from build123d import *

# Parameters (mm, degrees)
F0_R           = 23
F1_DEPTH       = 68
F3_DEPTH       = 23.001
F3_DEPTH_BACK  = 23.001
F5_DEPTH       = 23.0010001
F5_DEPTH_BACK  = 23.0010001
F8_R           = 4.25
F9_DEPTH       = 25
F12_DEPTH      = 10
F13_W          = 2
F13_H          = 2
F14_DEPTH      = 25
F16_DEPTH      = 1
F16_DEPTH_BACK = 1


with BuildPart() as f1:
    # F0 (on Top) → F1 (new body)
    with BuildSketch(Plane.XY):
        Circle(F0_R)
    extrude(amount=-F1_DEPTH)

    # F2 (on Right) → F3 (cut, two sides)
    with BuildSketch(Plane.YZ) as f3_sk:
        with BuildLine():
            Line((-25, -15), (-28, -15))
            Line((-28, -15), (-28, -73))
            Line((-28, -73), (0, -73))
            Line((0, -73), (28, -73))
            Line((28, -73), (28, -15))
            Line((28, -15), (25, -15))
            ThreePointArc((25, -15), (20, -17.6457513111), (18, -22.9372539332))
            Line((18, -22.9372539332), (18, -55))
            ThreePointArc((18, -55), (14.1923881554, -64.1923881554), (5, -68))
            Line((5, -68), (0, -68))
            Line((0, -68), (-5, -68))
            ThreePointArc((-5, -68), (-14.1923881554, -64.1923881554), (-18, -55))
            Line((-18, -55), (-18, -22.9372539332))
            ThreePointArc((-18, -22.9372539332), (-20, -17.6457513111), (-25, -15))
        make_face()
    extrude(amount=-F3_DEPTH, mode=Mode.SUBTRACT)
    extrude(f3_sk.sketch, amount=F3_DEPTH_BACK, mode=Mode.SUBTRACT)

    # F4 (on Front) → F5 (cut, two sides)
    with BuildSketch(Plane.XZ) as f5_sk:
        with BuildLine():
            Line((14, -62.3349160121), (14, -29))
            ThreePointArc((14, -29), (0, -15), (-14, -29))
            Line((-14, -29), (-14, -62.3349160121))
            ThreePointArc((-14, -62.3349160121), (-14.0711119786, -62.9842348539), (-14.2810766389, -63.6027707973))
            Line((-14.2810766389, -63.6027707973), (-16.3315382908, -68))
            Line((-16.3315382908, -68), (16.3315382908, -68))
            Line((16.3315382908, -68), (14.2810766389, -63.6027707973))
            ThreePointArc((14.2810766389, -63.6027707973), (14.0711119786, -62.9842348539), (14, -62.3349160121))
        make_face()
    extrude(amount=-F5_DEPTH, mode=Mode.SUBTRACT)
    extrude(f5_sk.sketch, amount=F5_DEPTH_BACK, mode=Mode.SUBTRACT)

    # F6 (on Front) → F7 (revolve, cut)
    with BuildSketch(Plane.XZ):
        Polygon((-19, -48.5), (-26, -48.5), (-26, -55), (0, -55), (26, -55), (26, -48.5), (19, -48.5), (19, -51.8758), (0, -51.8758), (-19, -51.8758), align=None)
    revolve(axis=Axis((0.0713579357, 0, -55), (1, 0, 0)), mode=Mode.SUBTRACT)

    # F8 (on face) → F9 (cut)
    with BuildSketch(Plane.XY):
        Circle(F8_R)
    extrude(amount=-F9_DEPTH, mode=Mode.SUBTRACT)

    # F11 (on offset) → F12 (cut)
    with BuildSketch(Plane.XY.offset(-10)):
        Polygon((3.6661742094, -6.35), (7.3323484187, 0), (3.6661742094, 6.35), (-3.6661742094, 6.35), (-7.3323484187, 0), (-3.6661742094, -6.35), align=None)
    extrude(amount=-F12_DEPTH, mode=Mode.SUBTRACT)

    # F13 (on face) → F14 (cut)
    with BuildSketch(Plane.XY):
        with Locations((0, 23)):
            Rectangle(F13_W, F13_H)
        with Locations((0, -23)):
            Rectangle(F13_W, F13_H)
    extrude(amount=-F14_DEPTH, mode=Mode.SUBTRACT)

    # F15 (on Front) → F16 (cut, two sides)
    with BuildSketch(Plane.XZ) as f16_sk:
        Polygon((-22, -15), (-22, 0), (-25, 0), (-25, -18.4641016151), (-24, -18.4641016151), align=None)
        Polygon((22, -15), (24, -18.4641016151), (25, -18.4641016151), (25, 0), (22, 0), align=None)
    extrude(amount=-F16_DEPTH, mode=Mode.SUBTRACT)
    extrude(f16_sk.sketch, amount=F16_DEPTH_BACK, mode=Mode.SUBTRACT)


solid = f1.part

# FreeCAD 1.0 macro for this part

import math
import FreeCAD as App
import Part
import Sketcher
Q = App.Units.Quantity

doc = App.newDocument("Part")
body = doc.addObject("PartDesign::Body", "Body")

sketch1 = body.newObject("Sketcher::SketchObject", "Sketch")
sketch1.AttachmentSupport = (doc.getObject("XY_Plane"), [""])
sketch1.MapMode = "FlatFace"
sketch1.addGeometry(Part.Circle(App.Vector(0, 0, 0), App.Vector(0, 0, 1), 23), False)
sketch1.addConstraint([
    Sketcher.Constraint("Coincident", 0, 3, -1, 1),
    Sketcher.Constraint("Diameter", 0, Q("46 mm")),
])
pad1 = body.newObject("PartDesign::Pad", "Pad")
pad1.Profile = sketch1
pad1.Length = 68
pad1.Reversed = True

sketch2 = body.newObject("Sketcher::SketchObject", "Sketch001")
sketch2.AttachmentSupport = (doc.getObject("YZ_Plane"), [""])
sketch2.MapMode = "FlatFace"
sketch2.addGeometry([
    Part.LineSegment(App.Vector(-25, -15, 0), App.Vector(-28, -15, 0)),
    Part.LineSegment(App.Vector(-28, -15, 0), App.Vector(-28, -73, 0)),
    Part.LineSegment(App.Vector(-28, -73, 0), App.Vector(28, -73, 0)),
    Part.LineSegment(App.Vector(28, -73, 0), App.Vector(28, -15, 0)),
    Part.LineSegment(App.Vector(28, -15, 0), App.Vector(25, -15, 0)),
    Part.ArcOfCircle(Part.Circle(App.Vector(26, -22.9, 0), App.Vector(0, 0, 1), 8), math.radians(97), math.radians(180)),
    Part.LineSegment(App.Vector(18, -22.9, 0), App.Vector(18, -55, 0)),
    Part.ArcOfCircle(Part.Circle(App.Vector(5, -55, 0), App.Vector(0, 0, 1), 13), math.radians(-90), math.radians(0)),
    Part.LineSegment(App.Vector(5, -68, 0), App.Vector(-5, -68, 0)),
    Part.ArcOfCircle(Part.Circle(App.Vector(-5, -55, 0), App.Vector(0, 0, 1), 13), math.radians(180), math.radians(270)),
    Part.LineSegment(App.Vector(-18, -55, 0), App.Vector(-18, -22.9, 0)),
    Part.ArcOfCircle(Part.Circle(App.Vector(-26, -22.9, 0), App.Vector(0, 0, 1), 8), math.radians(0), math.radians(83)),
], False)
sketch2.addConstraint([
    Sketcher.Constraint("Coincident", 0, 2, 1, 1),
    Sketcher.Constraint("Coincident", 1, 2, 2, 1),
    Sketcher.Constraint("Coincident", 2, 2, 3, 1),
    Sketcher.Constraint("Coincident", 3, 2, 4, 1),
    Sketcher.Constraint("Coincident", 4, 2, 5, 1),
    Sketcher.Constraint("Tangent", 5, 2, 6, 1),
    Sketcher.Constraint("Tangent", 6, 2, 7, 2),
    Sketcher.Constraint("Tangent", 7, 1, 8, 1),
    Sketcher.Constraint("Tangent", 8, 2, 9, 2),
    Sketcher.Constraint("Tangent", 9, 1, 10, 1),
    Sketcher.Constraint("Tangent", 10, 2, 11, 1),
    Sketcher.Constraint("Coincident", 11, 2, 0, 1),
    Sketcher.Constraint("Horizontal", 0),
    Sketcher.Constraint("Vertical", 1),
    Sketcher.Constraint("Horizontal", 2),
    Sketcher.Constraint("Vertical", 3),
    Sketcher.Constraint("Horizontal", 4),
    Sketcher.Constraint("Vertical", 6),
    Sketcher.Constraint("Horizontal", 8),
    Sketcher.Constraint("Vertical", 10),
    Sketcher.Constraint("Equal", 7, 9),
    Sketcher.Constraint("Equal", 5, 11),
    Sketcher.Constraint("Symmetric", 5, 3, 11, 3, -2),
    Sketcher.Constraint("Symmetric", 0, 2, 3, 2, -2),
    Sketcher.Constraint("Radius", 5, Q("8 mm")),
    Sketcher.Constraint("Radius", 7, Q("13 mm")),
    Sketcher.Constraint("DistanceX", 0, 2, 0, 1, Q("3 mm")),
    Sketcher.Constraint("DistanceX", 2, 1, 2, 2, Q("56 mm")),
    Sketcher.Constraint("DistanceX", 8, 2, 8, 1, Q("10 mm")),
    Sketcher.Constraint("DistanceY", 1, 2, 1, 1, Q("58 mm")),
    Sketcher.Constraint("DistanceY", 7, 3, -1, 1, Q("55 mm")),
    Sketcher.Constraint("DistanceY", 0, 2, -1, 1, Q("15 mm")),
])
pocket1 = body.newObject("PartDesign::Pocket", "Pocket")
pocket1.Profile = sketch2
pocket1.Type = "ThroughAll"
pocket1.Midplane = True

sketch3 = body.newObject("Sketcher::SketchObject", "Sketch002")
sketch3.AttachmentSupport = (doc.getObject("XZ_Plane"), [""])
sketch3.MapMode = "FlatFace"
sketch3.addGeometry([
    Part.LineSegment(App.Vector(14, -62.3, 0), App.Vector(14, -29, 0)),
    Part.ArcOfCircle(Part.Circle(App.Vector(0, -29, 0), App.Vector(0, 0, 1), 14), math.radians(0), math.radians(180)),
    Part.LineSegment(App.Vector(-14, -29, 0), App.Vector(-14, -62.3, 0)),
    Part.ArcOfCircle(Part.Circle(App.Vector(-17, -62.3, 0), App.Vector(0, 0, 1), 3), math.radians(-25), math.radians(0)),
    Part.LineSegment(App.Vector(-14.3, -63.6, 0), App.Vector(-16.3, -68, 0)),
    Part.LineSegment(App.Vector(-16.3, -68, 0), App.Vector(16.3, -68, 0)),
    Part.LineSegment(App.Vector(16.3, -68, 0), App.Vector(14.3, -63.6, 0)),
    Part.ArcOfCircle(Part.Circle(App.Vector(17, -62.3, 0), App.Vector(0, 0, 1), 3), math.radians(180), math.radians(205)),
], False)
sketch3.addConstraint([
    Sketcher.Constraint("Tangent", 0, 2, 1, 1),
    Sketcher.Constraint("Tangent", 1, 2, 2, 1),
    Sketcher.Constraint("Tangent", 2, 2, 3, 2),
    Sketcher.Constraint("Tangent", 3, 1, 4, 1),
    Sketcher.Constraint("Coincident", 4, 2, 5, 1),
    Sketcher.Constraint("Coincident", 5, 2, 6, 1),
    Sketcher.Constraint("Tangent", 6, 2, 7, 2),
    Sketcher.Constraint("Tangent", 7, 1, 0, 1),
    Sketcher.Constraint("Vertical", 0),
    Sketcher.Constraint("Vertical", 2),
    Sketcher.Constraint("Horizontal", 5),
    Sketcher.Constraint("Equal", 3, 7),
    Sketcher.Constraint("Symmetric", 3, 3, 7, 3, -2),
    Sketcher.Constraint("Horizontal", 3, 1, 6, 2),
    Sketcher.Constraint("Radius", 1, Q("14 mm")),
    Sketcher.Constraint("Radius", 3, Q("3 mm")),
    Sketcher.Constraint("Angle", 4, Q("-115 deg")),
    Sketcher.Constraint("DistanceY", 1, 3, -1, 1, Q("29 mm")),
    Sketcher.Constraint("DistanceY", 4, 2, -1, 1, Q("68 mm")),
    Sketcher.Constraint("DistanceX", 5, 1, 5, 2, Q("32.663077 mm")),
])
pocket2 = body.newObject("PartDesign::Pocket", "Pocket001")
pocket2.Profile = sketch3
pocket2.Type = "ThroughAll"
pocket2.Midplane = True

sketch4 = body.newObject("Sketcher::SketchObject", "Sketch003")
sketch4.AttachmentSupport = (doc.getObject("XZ_Plane"), [""])
sketch4.MapMode = "FlatFace"
sketch4.addGeometry([
    Part.LineSegment(App.Vector(-19, -48.5, 0), App.Vector(-26, -48.5, 0)),
    Part.LineSegment(App.Vector(-26, -48.5, 0), App.Vector(-26, -55, 0)),
    Part.LineSegment(App.Vector(-26, -55, 0), App.Vector(26, -55, 0)),
    Part.LineSegment(App.Vector(26, -55, 0), App.Vector(26, -48.5, 0)),
    Part.LineSegment(App.Vector(26, -48.5, 0), App.Vector(19, -48.5, 0)),
    Part.LineSegment(App.Vector(19, -48.5, 0), App.Vector(19, -51.9, 0)),
    Part.LineSegment(App.Vector(19, -51.9, 0), App.Vector(-19, -51.9, 0)),
    Part.LineSegment(App.Vector(-19, -51.9, 0), App.Vector(-19, -48.5, 0)),
], False)
sketch4.addGeometry(Part.LineSegment(App.Vector(-26, -55, 0), App.Vector(26, -55, 0)), True)
sketch4.addConstraint([
    Sketcher.Constraint("Coincident", 0, 2, 1, 1),
    Sketcher.Constraint("Coincident", 1, 2, 2, 1),
    Sketcher.Constraint("Coincident", 2, 2, 3, 1),
    Sketcher.Constraint("Coincident", 3, 2, 4, 1),
    Sketcher.Constraint("Coincident", 4, 2, 5, 1),
    Sketcher.Constraint("Coincident", 5, 2, 6, 1),
    Sketcher.Constraint("Coincident", 6, 2, 7, 1),
    Sketcher.Constraint("Coincident", 7, 2, 0, 1),
    Sketcher.Constraint("Horizontal", 0),
    Sketcher.Constraint("Vertical", 1),
    Sketcher.Constraint("Horizontal", 2),
    Sketcher.Constraint("Vertical", 3),
    Sketcher.Constraint("Horizontal", 4),
    Sketcher.Constraint("Vertical", 5),
    Sketcher.Constraint("Horizontal", 6),
    Sketcher.Constraint("Vertical", 7),
    Sketcher.Constraint("Horizontal", 8),
    Sketcher.Constraint("Coincident", 8, 1, 1, 2),
    Sketcher.Constraint("Symmetric", 0, 2, 3, 2, -2),
    Sketcher.Constraint("Vertical", 3, 2, 8, 2),
    Sketcher.Constraint("Equal", 0, 4),
    Sketcher.Constraint("DistanceX", 0, 2, 0, 1, Q("7 mm")),
    Sketcher.Constraint("DistanceX", 2, 1, 2, 2, Q("52 mm")),
    Sketcher.Constraint("DistanceY", 1, 2, 1, 1, Q("6.5 mm")),
    Sketcher.Constraint("DistanceY", 1, 2, -1, 1, Q("55 mm")),
    Sketcher.Constraint("DistanceY", 5, 2, 5, 1, Q("3.3758 mm")),
])
groove = body.newObject("PartDesign::Groove", "Groove")
groove.Profile = sketch4
groove.ReferenceAxis = (sketch4, ["Axis0"])
groove.Angle = 360

sketch5 = body.newObject("Sketcher::SketchObject", "Sketch004")
sketch5.AttachmentSupport = (doc.getObject("XY_Plane"), [""])
sketch5.MapMode = "FlatFace"
sketch5.addGeometry(Part.Circle(App.Vector(0, 0, 0), App.Vector(0, 0, 1), 4.2), False)
sketch5.addConstraint([
    Sketcher.Constraint("Coincident", 0, 3, -1, 1),
    Sketcher.Constraint("Diameter", 0, Q("8.5 mm")),
])
pocket3 = body.newObject("PartDesign::Pocket", "Pocket002")
pocket3.Profile = sketch5
pocket3.Length = 25

sketch6 = body.newObject("Sketcher::SketchObject", "Sketch005")
sketch6.AttachmentSupport = (doc.getObject("XY_Plane"), [""])
sketch6.MapMode = "FlatFace"
sketch6.AttachmentOffset = App.Placement(App.Vector(0, 0, -10), App.Rotation())
sketch6.addGeometry([
    Part.LineSegment(App.Vector(4, -6, 0), App.Vector(7, 0, 0)),
    Part.LineSegment(App.Vector(7, 0, 0), App.Vector(4, 6, 0)),
    Part.LineSegment(App.Vector(4, 6, 0), App.Vector(-4, 6, 0)),
    Part.LineSegment(App.Vector(-4, 6, 0), App.Vector(-7, 0, 0)),
    Part.LineSegment(App.Vector(-7, 0, 0), App.Vector(-4, -6, 0)),
    Part.LineSegment(App.Vector(-4, -6, 0), App.Vector(4, -6, 0)),
], False)
sketch6.addConstraint([
    Sketcher.Constraint("Coincident", 0, 2, 1, 1),
    Sketcher.Constraint("Coincident", 1, 2, 2, 1),
    Sketcher.Constraint("Coincident", 2, 2, 3, 1),
    Sketcher.Constraint("Coincident", 3, 2, 4, 1),
    Sketcher.Constraint("Coincident", 4, 2, 5, 1),
    Sketcher.Constraint("Coincident", 5, 2, 0, 1),
    Sketcher.Constraint("Horizontal", 2),
    Sketcher.Constraint("Horizontal", 5),
    Sketcher.Constraint("Symmetric", 0, 2, 3, 2, -1, 1),
    Sketcher.Constraint("Symmetric", 1, 2, 4, 2, -1, 1),
    Sketcher.Constraint("PointOnObject", 0, 2, -1),
    Sketcher.Constraint("Parallel", 0, 3),
    Sketcher.Constraint("Vertical", 2, 2, 4, 2),
    Sketcher.Constraint("Angle", 0, Q("60 deg")),
    Sketcher.Constraint("DistanceY", 4, 2, 2, 2, Q("12.7 mm")),
    Sketcher.Constraint("DistanceX", 2, 2, 2, 1, Q("7.332348 mm")),
])
pocket4 = body.newObject("PartDesign::Pocket", "Pocket003")
pocket4.Profile = sketch6
pocket4.Length = 10

sketch7 = body.newObject("Sketcher::SketchObject", "Sketch006")
sketch7.AttachmentSupport = (doc.getObject("XY_Plane"), [""])
sketch7.MapMode = "FlatFace"
sketch7.addGeometry([
    Part.LineSegment(App.Vector(-1, 24, 0), App.Vector(-1, 22, 0)),
    Part.LineSegment(App.Vector(-1, 22, 0), App.Vector(1, 22, 0)),
    Part.LineSegment(App.Vector(1, 22, 0), App.Vector(1, 24, 0)),
    Part.LineSegment(App.Vector(1, 24, 0), App.Vector(-1, 24, 0)),
    Part.LineSegment(App.Vector(-1, -22, 0), App.Vector(-1, -24, 0)),
    Part.LineSegment(App.Vector(-1, -24, 0), App.Vector(1, -24, 0)),
    Part.LineSegment(App.Vector(1, -24, 0), App.Vector(1, -22, 0)),
    Part.LineSegment(App.Vector(1, -22, 0), App.Vector(-1, -22, 0)),
], False)
sketch7.addConstraint([
    Sketcher.Constraint("Coincident", 0, 2, 1, 1),
    Sketcher.Constraint("Coincident", 1, 2, 2, 1),
    Sketcher.Constraint("Coincident", 2, 2, 3, 1),
    Sketcher.Constraint("Coincident", 3, 2, 0, 1),
    Sketcher.Constraint("Coincident", 4, 2, 5, 1),
    Sketcher.Constraint("Coincident", 5, 2, 6, 1),
    Sketcher.Constraint("Coincident", 6, 2, 7, 1),
    Sketcher.Constraint("Coincident", 7, 2, 4, 1),
    Sketcher.Constraint("Vertical", 0),
    Sketcher.Constraint("Horizontal", 1),
    Sketcher.Constraint("Vertical", 2),
    Sketcher.Constraint("Horizontal", 3),
    Sketcher.Constraint("Vertical", 4),
    Sketcher.Constraint("Horizontal", 5),
    Sketcher.Constraint("Vertical", 6),
    Sketcher.Constraint("Horizontal", 7),
    Sketcher.Constraint("Symmetric", 2, 2, 4, 2, -1, 1),
    Sketcher.Constraint("Symmetric", 0, 2, 6, 2, -1, 1),
    Sketcher.Constraint("Vertical", 3, 2, 4, 2),
    Sketcher.Constraint("Equal", 7, 0),
    Sketcher.Constraint("DistanceX", 1, 1, 1, 2, Q("2 mm")),
    Sketcher.Constraint("DistanceY", -1, 1, 0, 2, Q("22 mm")),
])
pocket5 = body.newObject("PartDesign::Pocket", "Pocket004")
pocket5.Profile = sketch7
pocket5.Length = 25

sketch8 = body.newObject("Sketcher::SketchObject", "Sketch007")
sketch8.AttachmentSupport = (doc.getObject("XZ_Plane"), [""])
sketch8.MapMode = "FlatFace"
sketch8.addGeometry([
    Part.LineSegment(App.Vector(-22, -15, 0), App.Vector(-22, 0, 0)),
    Part.LineSegment(App.Vector(-22, 0, 0), App.Vector(-25, 0, 0)),
    Part.LineSegment(App.Vector(-25, 0, 0), App.Vector(-25, -18.5, 0)),
    Part.LineSegment(App.Vector(-25, -18.5, 0), App.Vector(-24, -18.5, 0)),
    Part.LineSegment(App.Vector(-24, -18.5, 0), App.Vector(-22, -15, 0)),
    Part.LineSegment(App.Vector(22, -15, 0), App.Vector(24, -18.5, 0)),
    Part.LineSegment(App.Vector(24, -18.5, 0), App.Vector(25, -18.5, 0)),
    Part.LineSegment(App.Vector(25, -18.5, 0), App.Vector(25, 0, 0)),
    Part.LineSegment(App.Vector(25, 0, 0), App.Vector(22, 0, 0)),
    Part.LineSegment(App.Vector(22, 0, 0), App.Vector(22, -15, 0)),
], False)
sketch8.addConstraint([
    Sketcher.Constraint("Coincident", 0, 2, 1, 1),
    Sketcher.Constraint("Coincident", 1, 2, 2, 1),
    Sketcher.Constraint("Coincident", 2, 2, 3, 1),
    Sketcher.Constraint("Coincident", 3, 2, 4, 1),
    Sketcher.Constraint("Coincident", 4, 2, 0, 1),
    Sketcher.Constraint("Coincident", 5, 2, 6, 1),
    Sketcher.Constraint("Coincident", 6, 2, 7, 1),
    Sketcher.Constraint("Coincident", 7, 2, 8, 1),
    Sketcher.Constraint("Coincident", 8, 2, 9, 1),
    Sketcher.Constraint("Coincident", 9, 2, 5, 1),
    Sketcher.Constraint("Vertical", 0),
    Sketcher.Constraint("Horizontal", 1),
    Sketcher.Constraint("Vertical", 2),
    Sketcher.Constraint("Horizontal", 3),
    Sketcher.Constraint("Horizontal", 6),
    Sketcher.Constraint("Vertical", 7),
    Sketcher.Constraint("Horizontal", 8),
    Sketcher.Constraint("Vertical", 9),
    Sketcher.Constraint("Symmetric", 1, 2, 7, 2, -1, 1),
    Sketcher.Constraint("Symmetric", 3, 2, 5, 2, -2),
    Sketcher.Constraint("Symmetric", 0, 2, 8, 2, -2),
    Sketcher.Constraint("Horizontal", 4, 2, 9, 2),
    Sketcher.Constraint("DistanceX", 1, 2, 1, 1, Q("3 mm")),
    Sketcher.Constraint("DistanceX", 3, 1, 3, 2, Q("1 mm")),
    Sketcher.Constraint("DistanceY", 0, 1, 0, 2, Q("15 mm")),
    Sketcher.Constraint("Angle", 4, Q("60 deg")),
    Sketcher.Constraint("DistanceX", 0, 2, -1, 1, Q("22 mm")),
])
pocket6 = body.newObject("PartDesign::Pocket", "Pocket005")
pocket6.Profile = sketch8
pocket6.Type = "TwoLengths"
pocket6.Length = 1
pocket6.Length2 = 1

doc.recompute()
